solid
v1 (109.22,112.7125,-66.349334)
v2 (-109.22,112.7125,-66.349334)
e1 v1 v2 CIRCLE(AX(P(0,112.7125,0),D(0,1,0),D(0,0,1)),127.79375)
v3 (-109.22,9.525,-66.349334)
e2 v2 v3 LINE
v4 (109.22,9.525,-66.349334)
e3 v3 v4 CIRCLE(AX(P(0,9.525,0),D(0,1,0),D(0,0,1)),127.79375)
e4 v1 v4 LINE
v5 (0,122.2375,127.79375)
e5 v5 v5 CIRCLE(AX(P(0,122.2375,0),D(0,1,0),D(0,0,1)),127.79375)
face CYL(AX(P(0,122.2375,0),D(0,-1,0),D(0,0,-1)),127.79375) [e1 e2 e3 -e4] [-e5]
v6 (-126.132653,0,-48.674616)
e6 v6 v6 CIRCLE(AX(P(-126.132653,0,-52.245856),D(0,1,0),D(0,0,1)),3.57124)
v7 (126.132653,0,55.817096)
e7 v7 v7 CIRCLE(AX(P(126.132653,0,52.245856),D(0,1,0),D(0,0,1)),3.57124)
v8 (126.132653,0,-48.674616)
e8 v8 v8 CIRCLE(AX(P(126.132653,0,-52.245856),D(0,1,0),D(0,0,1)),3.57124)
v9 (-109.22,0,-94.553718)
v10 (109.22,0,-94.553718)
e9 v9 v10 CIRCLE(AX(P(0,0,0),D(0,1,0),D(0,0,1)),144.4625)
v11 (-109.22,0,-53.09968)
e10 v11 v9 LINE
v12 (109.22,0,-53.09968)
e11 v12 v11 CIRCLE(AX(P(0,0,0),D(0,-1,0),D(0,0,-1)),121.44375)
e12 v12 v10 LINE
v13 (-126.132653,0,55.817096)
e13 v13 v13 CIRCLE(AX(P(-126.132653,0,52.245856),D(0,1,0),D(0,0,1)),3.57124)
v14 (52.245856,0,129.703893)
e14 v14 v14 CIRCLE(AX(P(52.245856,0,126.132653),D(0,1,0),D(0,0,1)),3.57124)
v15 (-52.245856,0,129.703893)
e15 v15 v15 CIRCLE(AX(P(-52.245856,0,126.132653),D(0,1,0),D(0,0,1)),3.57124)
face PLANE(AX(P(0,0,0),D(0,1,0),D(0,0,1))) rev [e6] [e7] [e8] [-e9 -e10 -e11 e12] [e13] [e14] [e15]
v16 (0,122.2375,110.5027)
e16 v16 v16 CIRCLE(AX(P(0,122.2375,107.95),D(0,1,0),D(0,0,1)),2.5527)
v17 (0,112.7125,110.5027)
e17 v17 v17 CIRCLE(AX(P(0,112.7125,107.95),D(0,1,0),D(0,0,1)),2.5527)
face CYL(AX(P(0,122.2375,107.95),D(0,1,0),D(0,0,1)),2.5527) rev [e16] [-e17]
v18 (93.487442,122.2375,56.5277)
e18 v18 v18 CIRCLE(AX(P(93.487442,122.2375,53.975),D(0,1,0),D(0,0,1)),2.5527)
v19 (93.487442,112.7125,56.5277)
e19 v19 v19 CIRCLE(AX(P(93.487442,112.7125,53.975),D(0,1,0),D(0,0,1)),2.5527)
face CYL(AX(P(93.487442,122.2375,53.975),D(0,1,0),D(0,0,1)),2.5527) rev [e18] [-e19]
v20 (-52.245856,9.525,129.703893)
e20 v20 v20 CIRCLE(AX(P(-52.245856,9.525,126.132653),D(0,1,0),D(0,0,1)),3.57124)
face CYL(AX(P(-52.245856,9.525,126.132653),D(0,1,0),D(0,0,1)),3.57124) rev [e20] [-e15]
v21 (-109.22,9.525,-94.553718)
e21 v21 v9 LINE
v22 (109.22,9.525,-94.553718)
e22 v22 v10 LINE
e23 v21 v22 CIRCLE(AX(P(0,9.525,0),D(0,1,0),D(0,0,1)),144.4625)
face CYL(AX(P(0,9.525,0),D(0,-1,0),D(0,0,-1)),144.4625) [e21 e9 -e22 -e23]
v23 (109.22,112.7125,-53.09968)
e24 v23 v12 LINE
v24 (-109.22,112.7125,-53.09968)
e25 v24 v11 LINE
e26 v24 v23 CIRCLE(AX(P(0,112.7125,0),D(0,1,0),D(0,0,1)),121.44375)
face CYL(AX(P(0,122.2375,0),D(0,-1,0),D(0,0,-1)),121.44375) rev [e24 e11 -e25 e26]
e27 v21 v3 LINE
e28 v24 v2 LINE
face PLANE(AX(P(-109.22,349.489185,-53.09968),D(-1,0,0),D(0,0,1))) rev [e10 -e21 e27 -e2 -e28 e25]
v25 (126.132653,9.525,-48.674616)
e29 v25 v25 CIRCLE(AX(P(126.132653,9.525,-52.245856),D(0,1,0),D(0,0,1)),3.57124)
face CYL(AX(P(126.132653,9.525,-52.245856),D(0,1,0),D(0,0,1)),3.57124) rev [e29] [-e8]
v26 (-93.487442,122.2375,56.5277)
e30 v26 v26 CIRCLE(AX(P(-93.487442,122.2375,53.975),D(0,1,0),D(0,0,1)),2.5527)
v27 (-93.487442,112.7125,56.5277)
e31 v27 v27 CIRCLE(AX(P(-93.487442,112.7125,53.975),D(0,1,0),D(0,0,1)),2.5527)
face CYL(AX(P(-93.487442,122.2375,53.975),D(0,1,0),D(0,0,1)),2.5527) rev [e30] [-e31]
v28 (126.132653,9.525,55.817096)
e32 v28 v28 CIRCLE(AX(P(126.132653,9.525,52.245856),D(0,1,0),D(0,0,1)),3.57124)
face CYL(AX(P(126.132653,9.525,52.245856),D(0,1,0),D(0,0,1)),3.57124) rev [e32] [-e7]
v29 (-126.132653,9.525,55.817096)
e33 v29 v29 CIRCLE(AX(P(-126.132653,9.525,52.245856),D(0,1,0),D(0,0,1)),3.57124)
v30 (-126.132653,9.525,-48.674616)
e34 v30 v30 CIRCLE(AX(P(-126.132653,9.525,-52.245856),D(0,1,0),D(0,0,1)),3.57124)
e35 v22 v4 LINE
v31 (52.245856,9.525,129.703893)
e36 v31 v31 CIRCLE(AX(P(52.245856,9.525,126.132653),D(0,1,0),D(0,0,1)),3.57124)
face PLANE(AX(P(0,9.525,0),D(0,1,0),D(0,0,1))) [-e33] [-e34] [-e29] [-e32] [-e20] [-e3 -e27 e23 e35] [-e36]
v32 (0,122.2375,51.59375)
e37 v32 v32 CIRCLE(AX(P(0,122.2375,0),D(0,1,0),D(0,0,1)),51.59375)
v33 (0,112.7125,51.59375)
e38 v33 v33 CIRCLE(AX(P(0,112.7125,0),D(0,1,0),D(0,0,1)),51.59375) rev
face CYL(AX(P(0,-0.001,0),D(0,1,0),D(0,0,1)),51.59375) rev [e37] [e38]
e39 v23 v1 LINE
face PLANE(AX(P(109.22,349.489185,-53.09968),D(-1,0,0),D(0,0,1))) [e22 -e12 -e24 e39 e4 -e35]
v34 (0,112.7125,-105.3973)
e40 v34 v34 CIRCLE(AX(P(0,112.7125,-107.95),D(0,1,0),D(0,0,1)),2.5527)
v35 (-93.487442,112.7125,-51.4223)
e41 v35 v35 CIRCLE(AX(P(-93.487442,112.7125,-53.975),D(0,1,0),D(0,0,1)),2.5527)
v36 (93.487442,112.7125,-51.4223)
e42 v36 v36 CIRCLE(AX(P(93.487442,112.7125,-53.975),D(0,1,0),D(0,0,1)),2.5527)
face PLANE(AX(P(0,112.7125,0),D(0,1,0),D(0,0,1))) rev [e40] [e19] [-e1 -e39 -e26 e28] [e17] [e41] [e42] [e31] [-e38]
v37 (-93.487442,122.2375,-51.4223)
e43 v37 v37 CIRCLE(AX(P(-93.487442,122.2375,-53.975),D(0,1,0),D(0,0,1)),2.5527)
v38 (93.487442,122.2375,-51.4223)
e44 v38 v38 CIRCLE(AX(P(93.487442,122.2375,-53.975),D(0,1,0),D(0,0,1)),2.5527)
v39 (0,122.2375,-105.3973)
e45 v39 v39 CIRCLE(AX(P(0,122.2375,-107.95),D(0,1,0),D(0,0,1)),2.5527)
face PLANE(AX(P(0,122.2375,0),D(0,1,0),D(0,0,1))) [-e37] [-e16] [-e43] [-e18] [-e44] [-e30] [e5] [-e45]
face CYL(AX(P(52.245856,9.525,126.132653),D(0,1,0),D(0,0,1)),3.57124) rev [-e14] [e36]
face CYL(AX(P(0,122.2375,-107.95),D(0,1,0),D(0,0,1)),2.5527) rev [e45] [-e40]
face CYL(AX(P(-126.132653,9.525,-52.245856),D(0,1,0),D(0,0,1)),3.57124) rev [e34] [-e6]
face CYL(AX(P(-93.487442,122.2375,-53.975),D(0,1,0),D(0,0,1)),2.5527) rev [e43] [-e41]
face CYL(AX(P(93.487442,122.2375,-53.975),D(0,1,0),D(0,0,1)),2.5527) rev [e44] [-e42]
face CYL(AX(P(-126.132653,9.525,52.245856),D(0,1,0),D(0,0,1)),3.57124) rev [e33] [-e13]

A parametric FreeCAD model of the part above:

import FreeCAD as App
import Part
import Sketcher
Q = App.Units.Quantity

doc = App.newDocument("Part")
body = doc.addObject("PartDesign::Body", "Body")

# Sketch on XZ plane
sketch1 = body.newObject("Sketcher::SketchObject", "Sketch")
sketch1.AttachmentSupport = (doc.getObject("XZ_Plane"), [""])
sketch1.MapMode = "FlatFace"
sketch1.addGeometry(Part.Circle(App.Vector(0, 0, 0), App.Vector(0, 0, 1), 144.4625), False)
sketch1.addConstraint([
    Sketcher.Constraint("Coincident", 0, 3, -1, 1),
    Sketcher.Constraint("Diameter", 0, Q("11.375 in")),
])
pad1 = body.newObject("PartDesign::Pad", "Pad")
pad1.Profile = sketch1
pad1.Length = Q("0.375 in")
pad1.Reversed = True

# Sketch on XZ plane
sketch2 = body.newObject("Sketcher::SketchObject", "Sketch001")
sketch2.AttachmentSupport = (doc.getObject("XZ_Plane"), [""])
sketch2.MapMode = "FlatFace"
sketch2.AttachmentOffset = App.Placement(App.Vector(0, 0, -0.375 * 25.4), App.Rotation())
sketch2.addGeometry([
    Part.Circle(App.Vector(0, -136.525, 0), App.Vector(0, 0, 1), 3.57124),  # 0
    Part.Circle(App.Vector(-52.245856, -126.132653, 0), App.Vector(0, 0, 1), 3.57124),  # 1
    Part.Circle(App.Vector(52.245856, -126.132653, 0), App.Vector(0, 0, 1), 3.57124),  # 2
    Part.Circle(App.Vector(126.132653, -52.245856, 0), App.Vector(0, 0, 1), 3.57124),  # 3
    Part.Circle(App.Vector(126.132653, 52.245856, 0), App.Vector(0, 0, 1), 3.57124),  # 4
    Part.Circle(App.Vector(52.245856, 126.132653, 0), App.Vector(0, 0, 1), 3.57124),  # 5
    Part.Circle(App.Vector(-52.245856, 126.132653, 0), App.Vector(0, 0, 1), 3.57124),  # 6
    Part.Circle(App.Vector(-126.132653, 52.245856, 0), App.Vector(0, 0, 1), 3.57124),  # 7
    Part.Circle(App.Vector(-126.132653, -52.245856, 0), App.Vector(0, 0, 1), 3.57124),  # 8
], False)
sketch2.addConstraint([
    Sketcher.Constraint("Equal", 0, 1),
    Sketcher.Constraint("Equal", 1, 2),
    Sketcher.Constraint("Equal", 2, 3),
    Sketcher.Constraint("Equal", 3, 4),
    Sketcher.Constraint("Equal", 4, 5),
    Sketcher.Constraint("Equal", 5, 6),
    Sketcher.Constraint("Equal", 6, 7),
    Sketcher.Constraint("Equal", 7, 8),
    Sketcher.Constraint("Symmetric", 1, 3, 5, 3, -1, 1),
    Sketcher.Constraint("Symmetric", 2, 3, 6, 3, -1, 1),
    Sketcher.Constraint("Symmetric", 3, 3, 7, 3, -1, 1),
    Sketcher.Constraint("Symmetric", 4, 3, 8, 3, -1, 1),
    Sketcher.Constraint("Symmetric", 1, 3, 2, 3, -2),
    Sketcher.Constraint("Symmetric", 4, 3, 7, 3, -2),
    Sketcher.Constraint("PointOnObject", 0, 3, -2),
    Sketcher.Constraint("Diameter", 0, Q("0.2812 in")),
    Sketcher.Constraint("DistanceY", 0, 3, -1, 1, Q("5.375 in")),
    Sketcher.Constraint("DistanceX", 1, 3, 2, 3, Q("104.491711 mm")),
    Sketcher.Constraint("DistanceX", 1, 3, 3, 3, Q("178.378509 mm")),
    Sketcher.Constraint("DistanceY", 3, 3, 4, 3, Q("104.491711 mm")),
    Sketcher.Constraint("DistanceY", 2, 3, 4, 3, Q("178.378509 mm")),
])
doc.recompute()
hole = body.newObject("PartDesign::Hole", "Hole")
hole.Profile = sketch2
hole.ThreadType = "None"
hole.Diameter = Q("0.2812 in")
hole.DepthType = "ThroughAll"
hole.Reversed = True

# Sketch on XZ plane
sketch3 = body.newObject("Sketcher::SketchObject", "Sketch002")
sketch3.AttachmentSupport = (doc.getObject("XZ_Plane"), [""])
sketch3.MapMode = "FlatFace"
sketch3.AttachmentOffset = App.Placement(App.Vector(0, 0, -0.375 * 25.4), App.Rotation())
sketch3.addGeometry([
    Part.Circle(App.Vector(0, 0, 0), App.Vector(0, 0, 1), 127.79375),
    Part.Circle(App.Vector(0, 0, 0), App.Vector(0, 0, 1), 121.44375),
], False)
sketch3.addConstraint([
    Sketcher.Constraint("Coincident", 0, 3, -1, 1),
    Sketcher.Constraint("Coincident", 1, 3, -1, 1),
    Sketcher.Constraint("Diameter", 0, Q("10.0625 in")),
    Sketcher.Constraint("Diameter", 1, Q("9.5625 in")),
])
pad2 = body.newObject("PartDesign::Pad", "Pad001")
pad2.Profile = sketch3
pad2.Length = Q("4.4375 in")
pad2.Reversed = True

# Sketch on XZ plane
sketch4 = body.newObject("Sketcher::SketchObject", "Sketch003")
sketch4.AttachmentSupport = (doc.getObject("XZ_Plane"), [""])
sketch4.MapMode = "FlatFace"
sketch4.AttachmentOffset = App.Placement(App.Vector(0, 0, -4.4375 * 25.4), App.Rotation())
sketch4.addGeometry(Part.Circle(App.Vector(0, 0, 0), App.Vector(0, 0, 1), 121.44375), False)
sketch4.addConstraint([
    Sketcher.Constraint("Coincident", 0, 3, -1, 1),
    Sketcher.Constraint("Diameter", 0, Q("9.5625 in")),
])
pad3 = body.newObject("PartDesign::Pad", "Pad002")
pad3.Profile = sketch4
pad3.Length = Q("0.375 in")
pad3.Reversed = True

# Sketch on XZ plane
sketch5 = body.newObject("Sketcher::SketchObject", "Sketch004")
sketch5.AttachmentSupport = (doc.getObject("XZ_Plane"), [""])
sketch5.MapMode = "FlatFace"
sketch5.addGeometry(Part.Circle(App.Vector(0, 0, 0), App.Vector(0, 0, 1), 121.44375), False)
sketch5.addConstraint([
    Sketcher.Constraint("Coincident", 0, 3, -1, 1),
    Sketcher.Constraint("Diameter", 0, Q("9.5625 in")),
])
pocket1 = body.newObject("PartDesign::Pocket", "Pocket")
pocket1.Profile = sketch5
pocket1.Type = "UpToFirst"

# Sketch on XZ plane
sketch6 = body.newObject("Sketcher::SketchObject", "Sketch005")
sketch6.AttachmentSupport = (doc.getObject("XZ_Plane"), [""])
sketch6.MapMode = "FlatFace"
sketch6.AttachmentOffset = App.Placement(App.Vector(0, 0, -4.8125 * 25.4), App.Rotation())
sketch6.addGeometry(Part.Circle(App.Vector(0, 0, 0), App.Vector(0, 0, 1), 51.59375), False)
sketch6.addConstraint([
    Sketcher.Constraint("Coincident", 0, 3, -1, 1),
    Sketcher.Constraint("Diameter", 0, Q("4.0625 in")),
])
pocket2 = body.newObject("PartDesign::Pocket", "Pocket001")
pocket2.Profile = sketch6
pocket2.Type = "UpToFirst"
pocket2.Reversed = True

# Sketch on XZ plane
sketch7 = body.newObject("Sketcher::SketchObject", "Sketch006")
sketch7.AttachmentSupport = (doc.getObject("XZ_Plane"), [""])
sketch7.MapMode = "FlatFace"
sketch7.addGeometry([
    Part.LineSegment(App.Vector(-109.22, -144.4625, 0), App.Vector(-109.22, -53.09968, 0)),
    Part.LineSegment(App.Vector(-109.22, -53.09968, 0), App.Vector(109.22, -53.09968, 0)),
    Part.LineSegment(App.Vector(109.22, -53.09968, 0), App.Vector(109.22, -144.4625, 0)),
    Part.LineSegment(App.Vector(109.22, -144.4625, 0), App.Vector(-109.22, -144.4625, 0)),
], False)
sketch7.addConstraint([
    Sketcher.Constraint("Coincident", 0, 2, 1, 1),
    Sketcher.Constraint("Coincident", 1, 2, 2, 1),
    Sketcher.Constraint("Coincident", 2, 2, 3, 1),
    Sketcher.Constraint("Coincident", 3, 2, 0, 1),
    Sketcher.Constraint("Vertical", 0),
    Sketcher.Constraint("Horizontal", 1),
    Sketcher.Constraint("Vertical", 2),
    Sketcher.Constraint("Horizontal", 3),
    Sketcher.Constraint("DistanceX", 1, 1, 1, 2, Q("8.6 in")),
    Sketcher.Constraint("DistanceX", 0, 2, -1, 1, Q("4.3 in")),
    Sketcher.Constraint("DistanceY", 2, 2, -1, 1, Q("5.6875 in")),
    Sketcher.Constraint("DistanceY", 0, 1, 0, 2, Q("91.36282 mm")),
])
pocket3 = body.newObject("PartDesign::Pocket", "Pocket002")
pocket3.Profile = sketch7
pocket3.Length = Q("4.4375 in")

# Sketch on XZ plane
sketch8 = body.newObject("Sketcher::SketchObject", "Sketch007")
sketch8.AttachmentSupport = (doc.getObject("XZ_Plane"), [""])
sketch8.MapMode = "FlatFace"
sketch8.AttachmentOffset = App.Placement(App.Vector(0, 0, -4.8125 * 25.4), App.Rotation())
sketch8.addGeometry([
    Part.Circle(App.Vector(93.487442, 53.975, 0), App.Vector(0, 0, 1), 2.5527),  # 0
    Part.Circle(App.Vector(0, 107.95, 0), App.Vector(0, 0, 1), 2.5527),  # 1
    Part.Circle(App.Vector(-93.487442, 53.975, 0), App.Vector(0, 0, 1), 2.5527),  # 2
    Part.Circle(App.Vector(-93.487442, -53.975, 0), App.Vector(0, 0, 1), 2.5527),  # 3
    Part.Circle(App.Vector(0, -107.95, 0), App.Vector(0, 0, 1), 2.5527),  # 4
    Part.Circle(App.Vector(93.487442, -53.975, 0), App.Vector(0, 0, 1), 2.5527),  # 5
], False)
sketch8.addConstraint([
    Sketcher.Constraint("Equal", 0, 1),
    Sketcher.Constraint("Equal", 1, 2),
    Sketcher.Constraint("Equal", 2, 3),
    Sketcher.Constraint("Equal", 3, 4),
    Sketcher.Constraint("Equal", 4, 5),
    Sketcher.Constraint("Symmetric", 0, 3, 3, 3, -1, 1),
    Sketcher.Constraint("Symmetric", 1, 3, 4, 3, -1, 1),
    Sketcher.Constraint("Symmetric", 2, 3, 5, 3, -1, 1),
    Sketcher.Constraint("Symmetric", 0, 3, 2, 3, -2),
    Sketcher.Constraint("PointOnObject", 1, 3, -2),
    Sketcher.Constraint("Diameter", 0, Q("0.201 in")),
    Sketcher.Constraint("DistanceY", 4, 3, 1, 3, Q("8.5 in")),
    Sketcher.Constraint("DistanceY", 3, 3, 2, 3, Q("4.25 in")),
    Sketcher.Constraint("DistanceX", -1, 1, 0, 3, Q("93.487442 mm")),
])
doc.recompute()
hole2 = body.newObject("PartDesign::Hole", "Hole001")
hole2.Profile = sketch8
hole2.ThreadType = "None"
hole2.Diameter = Q("0.201 in")
hole2.DepthType = "ThroughAll"
hole2.Reversed = True

doc.recompute()
